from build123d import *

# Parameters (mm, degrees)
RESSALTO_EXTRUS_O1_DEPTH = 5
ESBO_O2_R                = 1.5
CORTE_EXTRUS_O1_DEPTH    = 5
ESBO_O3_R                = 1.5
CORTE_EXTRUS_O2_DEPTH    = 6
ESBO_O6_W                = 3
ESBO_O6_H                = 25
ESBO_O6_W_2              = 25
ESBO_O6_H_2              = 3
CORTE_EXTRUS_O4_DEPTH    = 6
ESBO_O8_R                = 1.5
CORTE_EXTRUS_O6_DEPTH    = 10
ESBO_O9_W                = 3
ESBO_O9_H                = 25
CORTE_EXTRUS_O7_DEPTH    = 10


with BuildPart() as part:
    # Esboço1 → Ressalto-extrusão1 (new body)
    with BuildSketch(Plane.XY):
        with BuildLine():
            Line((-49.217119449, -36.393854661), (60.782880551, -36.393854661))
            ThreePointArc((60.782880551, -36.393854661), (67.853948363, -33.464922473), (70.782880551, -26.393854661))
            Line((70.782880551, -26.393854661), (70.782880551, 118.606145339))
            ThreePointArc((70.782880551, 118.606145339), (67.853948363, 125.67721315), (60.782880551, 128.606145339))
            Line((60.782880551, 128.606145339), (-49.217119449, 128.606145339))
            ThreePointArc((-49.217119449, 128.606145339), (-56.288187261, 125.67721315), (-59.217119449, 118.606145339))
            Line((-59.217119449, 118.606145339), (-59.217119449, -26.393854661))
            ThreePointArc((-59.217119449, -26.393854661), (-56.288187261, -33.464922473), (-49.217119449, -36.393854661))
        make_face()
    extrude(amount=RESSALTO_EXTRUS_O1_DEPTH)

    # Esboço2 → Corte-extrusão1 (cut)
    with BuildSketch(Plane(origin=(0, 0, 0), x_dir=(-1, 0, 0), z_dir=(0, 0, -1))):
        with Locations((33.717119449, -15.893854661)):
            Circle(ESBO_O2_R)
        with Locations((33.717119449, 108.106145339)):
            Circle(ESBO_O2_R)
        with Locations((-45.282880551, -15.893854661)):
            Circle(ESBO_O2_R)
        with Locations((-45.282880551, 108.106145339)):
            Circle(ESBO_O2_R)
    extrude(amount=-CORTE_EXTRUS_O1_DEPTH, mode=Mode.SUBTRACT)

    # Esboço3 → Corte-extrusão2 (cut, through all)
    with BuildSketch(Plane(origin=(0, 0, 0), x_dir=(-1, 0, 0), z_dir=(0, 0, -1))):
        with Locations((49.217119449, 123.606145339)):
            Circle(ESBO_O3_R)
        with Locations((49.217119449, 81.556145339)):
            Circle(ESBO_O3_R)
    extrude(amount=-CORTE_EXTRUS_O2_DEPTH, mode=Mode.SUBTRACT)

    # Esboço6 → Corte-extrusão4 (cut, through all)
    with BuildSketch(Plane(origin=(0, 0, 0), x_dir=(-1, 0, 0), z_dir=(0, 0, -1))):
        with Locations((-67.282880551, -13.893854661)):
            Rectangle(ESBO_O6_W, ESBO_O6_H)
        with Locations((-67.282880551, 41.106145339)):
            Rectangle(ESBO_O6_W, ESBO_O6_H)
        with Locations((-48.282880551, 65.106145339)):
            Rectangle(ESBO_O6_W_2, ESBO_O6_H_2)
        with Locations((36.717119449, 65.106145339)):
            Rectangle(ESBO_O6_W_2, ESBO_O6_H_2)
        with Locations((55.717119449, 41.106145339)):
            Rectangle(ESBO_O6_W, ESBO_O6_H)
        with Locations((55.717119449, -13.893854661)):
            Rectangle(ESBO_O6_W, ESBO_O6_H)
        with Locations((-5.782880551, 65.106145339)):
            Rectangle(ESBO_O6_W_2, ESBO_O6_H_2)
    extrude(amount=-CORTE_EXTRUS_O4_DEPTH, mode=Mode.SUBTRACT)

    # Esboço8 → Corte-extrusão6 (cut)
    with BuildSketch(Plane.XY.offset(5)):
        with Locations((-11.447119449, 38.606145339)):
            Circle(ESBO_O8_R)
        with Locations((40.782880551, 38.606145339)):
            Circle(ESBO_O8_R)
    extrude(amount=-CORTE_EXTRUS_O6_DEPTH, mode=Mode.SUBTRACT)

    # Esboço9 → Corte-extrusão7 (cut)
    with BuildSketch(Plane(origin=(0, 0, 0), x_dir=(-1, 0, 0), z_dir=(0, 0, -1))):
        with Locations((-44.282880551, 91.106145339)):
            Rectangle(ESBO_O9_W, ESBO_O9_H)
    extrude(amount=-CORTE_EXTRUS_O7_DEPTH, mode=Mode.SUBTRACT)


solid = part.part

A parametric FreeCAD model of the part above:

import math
import FreeCAD as App
import Part
import Sketcher

doc = App.newDocument("Part")
params = doc.addObject("Spreadsheet::Sheet", "Params")
for row, (alias, value) in enumerate([
    ("sketch1_radius", "10 mm"),
    ("sketch1_width", "110 mm"),
    ("sketch1_height", "145 mm"),
    ("pad1_length", "5 mm"),
    ("sketch2_diameter", "3 mm"),
    ("pocket1_length", "5 mm"),
    ("sketch3_diameter", "3 mm"),
    ("sketch4_width", "3 mm"),
    ("sketch4_width2", "25 mm"),
    ("sketch5_diameter", "3 mm"),
    ("pocket4_length", "10 mm"),
    ("sketch6_width", "3 mm"),
    ("sketch6_height", "25 mm"),
    ("pocket5_length", "10 mm"),
], start=1):
    params.set(f"A{row}", alias)
    params.set(f"B{row}", "=" + value)
    params.setAlias(f"B{row}", alias)

body = doc.addObject("PartDesign::Body", "Body")

sketch1 = doc.addObject("Sketcher::SketchObject", "Sketch")
body.addObject(sketch1)
sketch1.AttachmentSupport = (doc.XY_Plane, [""])
sketch1.MapMode = "FlatFace"
sketch1.addGeometry([
    Part.LineSegment(App.Vector(-49, -36, 0), App.Vector(61, -36, 0)),
    Part.ArcOfCircle(Part.Circle(App.Vector(61, -26, 0), App.Vector(0, 0, 1), 10), math.radians(-90), math.radians(0)),
    Part.LineSegment(App.Vector(71, -26, 0), App.Vector(71, 119, 0)),
    Part.ArcOfCircle(Part.Circle(App.Vector(61, 119, 0), App.Vector(0, 0, 1), 10), math.radians(0), math.radians(90)),
    Part.LineSegment(App.Vector(61, 129, 0), App.Vector(-49, 129, 0)),
    Part.ArcOfCircle(Part.Circle(App.Vector(-49, 119, 0), App.Vector(0, 0, 1), 10), math.radians(90), math.radians(180)),
    Part.LineSegment(App.Vector(-59, 119, 0), App.Vector(-59, -26, 0)),
    Part.ArcOfCircle(Part.Circle(App.Vector(-49, -26, 0), App.Vector(0, 0, 1), 10), math.radians(180), math.radians(270)),
], False)
sketch1.addConstraint([
    Sketcher.Constraint("Tangent", 0, 2, 1, 1),
    Sketcher.Constraint("Tangent", 1, 2, 2, 1),
    Sketcher.Constraint("Tangent", 2, 2, 3, 1),
    Sketcher.Constraint("Tangent", 3, 2, 4, 1),
    Sketcher.Constraint("Tangent", 4, 2, 5, 1),
    Sketcher.Constraint("Tangent", 5, 2, 6, 1),
    Sketcher.Constraint("Tangent", 6, 2, 7, 1),
    Sketcher.Constraint("Tangent", 7, 2, 0, 1),
    Sketcher.Constraint("Horizontal", 0),
    Sketcher.Constraint("Vertical", 2),
    Sketcher.Constraint("Horizontal", 4),
    Sketcher.Constraint("Vertical", 6),
    Sketcher.Constraint("Equal", 1, 3),
    Sketcher.Constraint("Equal", 3, 5),
    Sketcher.Constraint("Equal", 5, 7),
    Sketcher.Constraint("Radius", 1, 10.0),
    Sketcher.Constraint("DistanceX", 0, 1, 0, 2, 110.0),
    Sketcher.Constraint("DistanceY", 2, 1, 2, 2, 145.0),
    Sketcher.Constraint("DistanceX", -1, 1, 1, 3, 60.782881),
    Sketcher.Constraint("DistanceY", 1, 3, -1, 1, 26.393855),
])
sketch1.setExpression("Constraints[15]", "Params.sketch1_radius")
sketch1.setExpression("Constraints[16]", "Params.sketch1_width")
sketch1.setExpression("Constraints[17]", "Params.sketch1_height")
pad1 = doc.addObject("PartDesign::Pad", "Pad")
body.addObject(pad1)
pad1.Profile = sketch1
pad1.setExpression("Length", "Params.pad1_length")

sketch2 = doc.addObject("Sketcher::SketchObject", "Sketch001")
body.addObject(sketch2)
sketch2.AttachmentSupport = (doc.XY_Plane, [""])
sketch2.MapMode = "FlatFace"
sketch2.addGeometry([
    Part.Circle(App.Vector(-33.7, -15.9, 0), App.Vector(0, 0, 1), 1.5),
    Part.Circle(App.Vector(-33.7, 108.1, 0), App.Vector(0, 0, 1), 1.5),
    Part.Circle(App.Vector(45.3, -15.9, 0), App.Vector(0, 0, 1), 1.5),
    Part.Circle(App.Vector(45.3, 108.1, 0), App.Vector(0, 0, 1), 1.5),
], False)
sketch2.addConstraint([
    Sketcher.Constraint("Equal", 0, 1),
    Sketcher.Constraint("Equal", 1, 2),
    Sketcher.Constraint("Equal", 2, 3),
    Sketcher.Constraint("Horizontal", 0, 3, 2, 3),
    Sketcher.Constraint("Horizontal", 1, 3, 3, 3),
    Sketcher.Constraint("Vertical", 0, 3, 1, 3),
    Sketcher.Constraint("Vertical", 2, 3, 3, 3),
    Sketcher.Constraint("Diameter", 0, 3.0),
    Sketcher.Constraint("DistanceY", 0, 3, 1, 3, 124.0),
    Sketcher.Constraint("DistanceX", 0, 3, 2, 3, 79.0),
    Sketcher.Constraint("DistanceX", 0, 3, -1, 1, 33.717119),
    Sketcher.Constraint("DistanceY", 0, 3, -1, 1, 15.893855),
])
sketch2.setExpression("Constraints[7]", "Params.sketch2_diameter")
pocket1 = doc.addObject("PartDesign::Pocket", "Pocket")
body.addObject(pocket1)
pocket1.Profile = sketch2
pocket1.setExpression("Length", "Params.pocket1_length")
pocket1.Reversed = True

sketch3 = doc.addObject("Sketcher::SketchObject", "Sketch002")
body.addObject(sketch3)
sketch3.AttachmentSupport = (doc.XY_Plane, [""])
sketch3.MapMode = "FlatFace"
sketch3.addGeometry([
    Part.Circle(App.Vector(-49.2, 123.6, 0), App.Vector(0, 0, 1), 1.5),
    Part.Circle(App.Vector(-49.2, 81.6, 0), App.Vector(0, 0, 1), 1.5),
], False)
sketch3.addConstraint([
    Sketcher.Constraint("Equal", 0, 1),
    Sketcher.Constraint("Vertical", 0, 3, 1, 3),
    Sketcher.Constraint("Diameter", 0, 3.0),
    Sketcher.Constraint("DistanceY", 1, 3, 0, 3, 42.05),
    Sketcher.Constraint("DistanceX", 0, 3, -1, 1, 49.217119),
    Sketcher.Constraint("DistanceY", -1, 1, 0, 3, 123.606145),
])
sketch3.setExpression("Constraints[2]", "Params.sketch3_diameter")
pocket2 = doc.addObject("PartDesign::Pocket", "Pocket001")
body.addObject(pocket2)
pocket2.Profile = sketch3
pocket2.Type = "ThroughAll"
pocket2.Reversed = True

sketch4 = doc.addObject("Sketcher::SketchObject", "Sketch003")
body.addObject(sketch4)
sketch4.AttachmentSupport = (doc.XY_Plane, [""])
sketch4.MapMode = "FlatFace"
sketch4.addGeometry([
    Part.LineSegment(App.Vector(68.8, -1.4, 0), App.Vector(68.8, -26.4, 0)),
    Part.LineSegment(App.Vector(68.8, -26.4, 0), App.Vector(65.8, -26.4, 0)),
    Part.LineSegment(App.Vector(65.8, -26.4, 0), App.Vector(65.8, -1.4, 0)),
    Part.LineSegment(App.Vector(65.8, -1.4, 0), App.Vector(68.8, -1.4, 0)),
    Part.LineSegment(App.Vector(68.8, 53.6, 0), App.Vector(68.8, 28.6, 0)),
    Part.LineSegment(App.Vector(68.8, 28.6, 0), App.Vector(65.8, 28.6, 0)),
    Part.LineSegment(App.Vector(65.8, 28.6, 0), App.Vector(65.8, 53.6, 0)),
    Part.LineSegment(App.Vector(65.8, 53.6, 0), App.Vector(68.8, 53.6, 0)),
    Part.LineSegment(App.Vector(60.8, 66.6, 0), App.Vector(60.8, 63.6, 0)),
    Part.LineSegment(App.Vector(60.8, 63.6, 0), App.Vector(35.8, 63.6, 0)),
    Part.LineSegment(App.Vector(35.8, 63.6, 0), App.Vector(35.8, 66.6, 0)),
    Part.LineSegment(App.Vector(35.8, 66.6, 0), App.Vector(60.8, 66.6, 0)),
    Part.LineSegment(App.Vector(-24.2, 66.6, 0), App.Vector(-24.2, 63.6, 0)),
    Part.LineSegment(App.Vector(-24.2, 63.6, 0), App.Vector(-49.2, 63.6, 0)),
    Part.LineSegment(App.Vector(-49.2, 63.6, 0), App.Vector(-49.2, 66.6, 0)),
    Part.LineSegment(App.Vector(-49.2, 66.6, 0), App.Vector(-24.2, 66.6, 0)),
    Part.LineSegment(App.Vector(-54.2, 53.6, 0), App.Vector(-54.2, 28.6, 0)),
    Part.LineSegment(App.Vector(-54.2, 28.6, 0), App.Vector(-57.2, 28.6, 0)),
    Part.LineSegment(App.Vector(-57.2, 28.6, 0), App.Vector(-57.2, 53.6, 0)),
    Part.LineSegment(App.Vector(-57.2, 53.6, 0), App.Vector(-54.2, 53.6, 0)),
    Part.LineSegment(App.Vector(-54.2, -1.4, 0), App.Vector(-54.2, -26.4, 0)),
    Part.LineSegment(App.Vector(-54.2, -26.4, 0), App.Vector(-57.2, -26.4, 0)),
    Part.LineSegment(App.Vector(-57.2, -26.4, 0), App.Vector(-57.2, -1.4, 0)),
    Part.LineSegment(App.Vector(-57.2, -1.4, 0), App.Vector(-54.2, -1.4, 0)),
    Part.LineSegment(App.Vector(18.3, 66.6, 0), App.Vector(18.3, 63.6, 0)),
    Part.LineSegment(App.Vector(18.3, 63.6, 0), App.Vector(-6.7, 63.6, 0)),
    Part.LineSegment(App.Vector(-6.7, 63.6, 0), App.Vector(-6.7, 66.6, 0)),
    Part.LineSegment(App.Vector(-6.7, 66.6, 0), App.Vector(18.3, 66.6, 0)),
], False)
sketch4.addConstraint([
    Sketcher.Constraint("Coincident", 0, 2, 1, 1),
    Sketcher.Constraint("Coincident", 1, 2, 2, 1),
    Sketcher.Constraint("Coincident", 2, 2, 3, 1),
    Sketcher.Constraint("Coincident", 3, 2, 0, 1),
    Sketcher.Constraint("Coincident", 4, 2, 5, 1),
    Sketcher.Constraint("Coincident", 5, 2, 6, 1),
    Sketcher.Constraint("Coincident", 6, 2, 7, 1),
    Sketcher.Constraint("Coincident", 7, 2, 4, 1),
    Sketcher.Constraint("Coincident", 8, 2, 9, 1),
    Sketcher.Constraint("Coincident", 9, 2, 10, 1),
    Sketcher.Constraint("Coincident", 10, 2, 11, 1),
    Sketcher.Constraint("Coincident", 11, 2, 8, 1),
    Sketcher.Constraint("Coincident", 12, 2, 13, 1),
    Sketcher.Constraint("Coincident", 13, 2, 14, 1),
    Sketcher.Constraint("Coincident", 14, 2, 15, 1),
    Sketcher.Constraint("Coincident", 15, 2, 12, 1),
    Sketcher.Constraint("Coincident", 16, 2, 17, 1),
    Sketcher.Constraint("Coincident", 17, 2, 18, 1),
    Sketcher.Constraint("Coincident", 18, 2, 19, 1),
    Sketcher.Constraint("Coincident", 19, 2, 16, 1),
    Sketcher.Constraint("Coincident", 20, 2, 21, 1),
    Sketcher.Constraint("Coincident", 21, 2, 22, 1),
    Sketcher.Constraint("Coincident", 22, 2, 23, 1),
    Sketcher.Constraint("Coincident", 23, 2, 20, 1),
    Sketcher.Constraint("Coincident", 24, 2, 25, 1),
    Sketcher.Constraint("Coincident", 25, 2, 26, 1),
    Sketcher.Constraint("Coincident", 26, 2, 27, 1),
    Sketcher.Constraint("Coincident", 27, 2, 24, 1),
    Sketcher.Constraint("Vertical", 0),
    Sketcher.Constraint("Horizontal", 1),
    Sketcher.Constraint("Vertical", 2),
    Sketcher.Constraint("Horizontal", 3),
    Sketcher.Constraint("Vertical", 4),
    Sketcher.Constraint("Horizontal", 5),
    Sketcher.Constraint("Vertical", 6),
    Sketcher.Constraint("Horizontal", 7),
    Sketcher.Constraint("Vertical", 8),
    Sketcher.Constraint("Horizontal", 9),
    Sketcher.Constraint("Vertical", 10),
    Sketcher.Constraint("Horizontal", 11),
    Sketcher.Constraint("Vertical", 12),
    Sketcher.Constraint("Horizontal", 13),
    Sketcher.Constraint("Vertical", 14),
    Sketcher.Constraint("Horizontal", 15),
    Sketcher.Constraint("Vertical", 16),
    Sketcher.Constraint("Horizontal", 17),
    Sketcher.Constraint("Vertical", 18),
    Sketcher.Constraint("Horizontal", 19),
    Sketcher.Constraint("Vertical", 20),
    Sketcher.Constraint("Horizontal", 21),
    Sketcher.Constraint("Vertical", 22),
    Sketcher.Constraint("Horizontal", 23),
    Sketcher.Constraint("Vertical", 24),
    Sketcher.Constraint("Horizontal", 25),
    Sketcher.Constraint("Vertical", 26),
    Sketcher.Constraint("Horizontal", 27),
    Sketcher.Constraint("Horizontal", 9, 2, 12, 2),
    Sketcher.Constraint("Horizontal", 11, 2, 14, 2),
    Sketcher.Constraint("Horizontal", 5, 2, 16, 2),
    Sketcher.Constraint("Horizontal", 7, 2, 18, 2),
    Sketcher.Constraint("Horizontal", 1, 2, 20, 2),
    Sketcher.Constraint("Horizontal", 3, 2, 22, 2),
    Sketcher.Constraint("Horizontal", 13, 2, 24, 2),
    Sketcher.Constraint("Horizontal", 15, 2, 26, 2),
    Sketcher.Constraint("Vertical", 3, 2, 4, 2),
    Sketcher.Constraint("Vertical", 2, 2, 5, 2),
    Sketcher.Constraint("Vertical", 19, 2, 20, 2),
    Sketcher.Constraint("Vertical", 18, 2, 21, 2),
    Sketcher.Constraint("Equal", 11, 13),
    Sketcher.Constraint("Equal", 7, 17),
    Sketcher.Constraint("Equal", 15, 25),
    Sketcher.Constraint("Equal", 27, 0),
    Sketcher.Constraint("Equal", 2, 4),
    Sketcher.Constraint("Equal", 23, 8),
    Sketcher.Constraint("DistanceX", 1, 2, 1, 1, 3.0),
    Sketcher.Constraint("DistanceX", 9, 2, 9, 1, 25.0),
    Sketcher.Constraint("DistanceY", 3, 2, 4, 2, 30.0),
    Sketcher.Constraint("DistanceX", 8, 2, 6, 2, 5.0),
    Sketcher.Constraint("DistanceY", 6, 2, 8, 2, 10.0),
    Sketcher.Constraint("DistanceX", 12, 2, 9, 2, 60.0),
    Sketcher.Constraint("DistanceX", 16, 2, 13, 2, 5.0),
    Sketcher.Constraint("DistanceX", 24, 2, 9, 2, 17.5),
    Sketcher.Constraint("DistanceX", -1, 1, 0, 2, 68.782881),
    Sketcher.Constraint("DistanceY", 0, 2, -1, 1, 26.393855),
])
sketch4.setExpression("Constraints[74]", "Params.sketch4_width")
sketch4.setExpression("Constraints[75]", "Params.sketch4_width2")
pocket3 = doc.addObject("PartDesign::Pocket", "Pocket002")
body.addObject(pocket3)
pocket3.Profile = sketch4
pocket3.Type = "ThroughAll"
pocket3.Reversed = True

sketch5 = doc.addObject("Sketcher::SketchObject", "Sketch004")
body.addObject(sketch5)
sketch5.AttachmentSupport = (doc.XY_Plane, [""])
sketch5.MapMode = "FlatFace"
sketch5.AttachmentOffset = App.Placement(App.Vector(0, 0, 5), App.Rotation())
sketch5.addGeometry([
    Part.Circle(App.Vector(-11.4, 38.6, 0), App.Vector(0, 0, 1), 1.5),
    Part.Circle(App.Vector(40.8, 38.6, 0), App.Vector(0, 0, 1), 1.5),
], False)
sketch5.addConstraint([
    Sketcher.Constraint("Equal", 0, 1),
    Sketcher.Constraint("Horizontal", 0, 3, 1, 3),
    Sketcher.Constraint("Diameter", 0, 3.0),
    Sketcher.Constraint("DistanceX", 0, 3, 1, 3, 52.23),
    Sketcher.Constraint("DistanceX", 0, 3, -1, 1, 11.447119),
    Sketcher.Constraint("DistanceY", -1, 1, 0, 3, 38.606145),
])
sketch5.setExpression("Constraints[2]", "Params.sketch5_diameter")
pocket4 = doc.addObject("PartDesign::Pocket", "Pocket003")
body.addObject(pocket4)
pocket4.Profile = sketch5
pocket4.setExpression("Length", "Params.pocket4_length")

sketch6 = doc.addObject("Sketcher::SketchObject", "Sketch005")
body.addObject(sketch6)
sketch6.AttachmentSupport = (doc.XY_Plane, [""])
sketch6.MapMode = "FlatFace"
sketch6.addGeometry([
    Part.LineSegment(App.Vector(45.8, 103.6, 0), App.Vector(45.8, 78.6, 0)),
    Part.LineSegment(App.Vector(45.8, 78.6, 0), App.Vector(42.8, 78.6, 0)),
    Part.LineSegment(App.Vector(42.8, 78.6, 0), App.Vector(42.8, 103.6, 0)),
    Part.LineSegment(App.Vector(42.8, 103.6, 0), App.Vector(45.8, 103.6, 0)),
], False)
sketch6.addConstraint([
    Sketcher.Constraint("Coincident", 0, 2, 1, 1),
    Sketcher.Constraint("Coincident", 1, 2, 2, 1),
    Sketcher.Constraint("Coincident", 2, 2, 3, 1),
    Sketcher.Constraint("Coincident", 3, 2, 0, 1),
    Sketcher.Constraint("Vertical", 0),
    Sketcher.Constraint("Horizontal", 1),
    Sketcher.Constraint("Vertical", 2),
    Sketcher.Constraint("Horizontal", 3),
    Sketcher.Constraint("DistanceX", 1, 2, 1, 1, 3.0),
    Sketcher.Constraint("DistanceY", 0, 2, 0, 1, 25.0),
    Sketcher.Constraint("DistanceX", -1, 1, 0, 2, 45.782881),
    Sketcher.Constraint("DistanceY", -1, 1, 0, 2, 78.606145),
])
sketch6.setExpression("Constraints[8]", "Params.sketch6_width")
sketch6.setExpression("Constraints[9]", "Params.sketch6_height")
pocket5 = doc.addObject("PartDesign::Pocket", "Pocket004")
body.addObject(pocket5)
pocket5.Profile = sketch6
pocket5.setExpression("Length", "Params.pocket5_length")
pocket5.Reversed = True

doc.recompute()
